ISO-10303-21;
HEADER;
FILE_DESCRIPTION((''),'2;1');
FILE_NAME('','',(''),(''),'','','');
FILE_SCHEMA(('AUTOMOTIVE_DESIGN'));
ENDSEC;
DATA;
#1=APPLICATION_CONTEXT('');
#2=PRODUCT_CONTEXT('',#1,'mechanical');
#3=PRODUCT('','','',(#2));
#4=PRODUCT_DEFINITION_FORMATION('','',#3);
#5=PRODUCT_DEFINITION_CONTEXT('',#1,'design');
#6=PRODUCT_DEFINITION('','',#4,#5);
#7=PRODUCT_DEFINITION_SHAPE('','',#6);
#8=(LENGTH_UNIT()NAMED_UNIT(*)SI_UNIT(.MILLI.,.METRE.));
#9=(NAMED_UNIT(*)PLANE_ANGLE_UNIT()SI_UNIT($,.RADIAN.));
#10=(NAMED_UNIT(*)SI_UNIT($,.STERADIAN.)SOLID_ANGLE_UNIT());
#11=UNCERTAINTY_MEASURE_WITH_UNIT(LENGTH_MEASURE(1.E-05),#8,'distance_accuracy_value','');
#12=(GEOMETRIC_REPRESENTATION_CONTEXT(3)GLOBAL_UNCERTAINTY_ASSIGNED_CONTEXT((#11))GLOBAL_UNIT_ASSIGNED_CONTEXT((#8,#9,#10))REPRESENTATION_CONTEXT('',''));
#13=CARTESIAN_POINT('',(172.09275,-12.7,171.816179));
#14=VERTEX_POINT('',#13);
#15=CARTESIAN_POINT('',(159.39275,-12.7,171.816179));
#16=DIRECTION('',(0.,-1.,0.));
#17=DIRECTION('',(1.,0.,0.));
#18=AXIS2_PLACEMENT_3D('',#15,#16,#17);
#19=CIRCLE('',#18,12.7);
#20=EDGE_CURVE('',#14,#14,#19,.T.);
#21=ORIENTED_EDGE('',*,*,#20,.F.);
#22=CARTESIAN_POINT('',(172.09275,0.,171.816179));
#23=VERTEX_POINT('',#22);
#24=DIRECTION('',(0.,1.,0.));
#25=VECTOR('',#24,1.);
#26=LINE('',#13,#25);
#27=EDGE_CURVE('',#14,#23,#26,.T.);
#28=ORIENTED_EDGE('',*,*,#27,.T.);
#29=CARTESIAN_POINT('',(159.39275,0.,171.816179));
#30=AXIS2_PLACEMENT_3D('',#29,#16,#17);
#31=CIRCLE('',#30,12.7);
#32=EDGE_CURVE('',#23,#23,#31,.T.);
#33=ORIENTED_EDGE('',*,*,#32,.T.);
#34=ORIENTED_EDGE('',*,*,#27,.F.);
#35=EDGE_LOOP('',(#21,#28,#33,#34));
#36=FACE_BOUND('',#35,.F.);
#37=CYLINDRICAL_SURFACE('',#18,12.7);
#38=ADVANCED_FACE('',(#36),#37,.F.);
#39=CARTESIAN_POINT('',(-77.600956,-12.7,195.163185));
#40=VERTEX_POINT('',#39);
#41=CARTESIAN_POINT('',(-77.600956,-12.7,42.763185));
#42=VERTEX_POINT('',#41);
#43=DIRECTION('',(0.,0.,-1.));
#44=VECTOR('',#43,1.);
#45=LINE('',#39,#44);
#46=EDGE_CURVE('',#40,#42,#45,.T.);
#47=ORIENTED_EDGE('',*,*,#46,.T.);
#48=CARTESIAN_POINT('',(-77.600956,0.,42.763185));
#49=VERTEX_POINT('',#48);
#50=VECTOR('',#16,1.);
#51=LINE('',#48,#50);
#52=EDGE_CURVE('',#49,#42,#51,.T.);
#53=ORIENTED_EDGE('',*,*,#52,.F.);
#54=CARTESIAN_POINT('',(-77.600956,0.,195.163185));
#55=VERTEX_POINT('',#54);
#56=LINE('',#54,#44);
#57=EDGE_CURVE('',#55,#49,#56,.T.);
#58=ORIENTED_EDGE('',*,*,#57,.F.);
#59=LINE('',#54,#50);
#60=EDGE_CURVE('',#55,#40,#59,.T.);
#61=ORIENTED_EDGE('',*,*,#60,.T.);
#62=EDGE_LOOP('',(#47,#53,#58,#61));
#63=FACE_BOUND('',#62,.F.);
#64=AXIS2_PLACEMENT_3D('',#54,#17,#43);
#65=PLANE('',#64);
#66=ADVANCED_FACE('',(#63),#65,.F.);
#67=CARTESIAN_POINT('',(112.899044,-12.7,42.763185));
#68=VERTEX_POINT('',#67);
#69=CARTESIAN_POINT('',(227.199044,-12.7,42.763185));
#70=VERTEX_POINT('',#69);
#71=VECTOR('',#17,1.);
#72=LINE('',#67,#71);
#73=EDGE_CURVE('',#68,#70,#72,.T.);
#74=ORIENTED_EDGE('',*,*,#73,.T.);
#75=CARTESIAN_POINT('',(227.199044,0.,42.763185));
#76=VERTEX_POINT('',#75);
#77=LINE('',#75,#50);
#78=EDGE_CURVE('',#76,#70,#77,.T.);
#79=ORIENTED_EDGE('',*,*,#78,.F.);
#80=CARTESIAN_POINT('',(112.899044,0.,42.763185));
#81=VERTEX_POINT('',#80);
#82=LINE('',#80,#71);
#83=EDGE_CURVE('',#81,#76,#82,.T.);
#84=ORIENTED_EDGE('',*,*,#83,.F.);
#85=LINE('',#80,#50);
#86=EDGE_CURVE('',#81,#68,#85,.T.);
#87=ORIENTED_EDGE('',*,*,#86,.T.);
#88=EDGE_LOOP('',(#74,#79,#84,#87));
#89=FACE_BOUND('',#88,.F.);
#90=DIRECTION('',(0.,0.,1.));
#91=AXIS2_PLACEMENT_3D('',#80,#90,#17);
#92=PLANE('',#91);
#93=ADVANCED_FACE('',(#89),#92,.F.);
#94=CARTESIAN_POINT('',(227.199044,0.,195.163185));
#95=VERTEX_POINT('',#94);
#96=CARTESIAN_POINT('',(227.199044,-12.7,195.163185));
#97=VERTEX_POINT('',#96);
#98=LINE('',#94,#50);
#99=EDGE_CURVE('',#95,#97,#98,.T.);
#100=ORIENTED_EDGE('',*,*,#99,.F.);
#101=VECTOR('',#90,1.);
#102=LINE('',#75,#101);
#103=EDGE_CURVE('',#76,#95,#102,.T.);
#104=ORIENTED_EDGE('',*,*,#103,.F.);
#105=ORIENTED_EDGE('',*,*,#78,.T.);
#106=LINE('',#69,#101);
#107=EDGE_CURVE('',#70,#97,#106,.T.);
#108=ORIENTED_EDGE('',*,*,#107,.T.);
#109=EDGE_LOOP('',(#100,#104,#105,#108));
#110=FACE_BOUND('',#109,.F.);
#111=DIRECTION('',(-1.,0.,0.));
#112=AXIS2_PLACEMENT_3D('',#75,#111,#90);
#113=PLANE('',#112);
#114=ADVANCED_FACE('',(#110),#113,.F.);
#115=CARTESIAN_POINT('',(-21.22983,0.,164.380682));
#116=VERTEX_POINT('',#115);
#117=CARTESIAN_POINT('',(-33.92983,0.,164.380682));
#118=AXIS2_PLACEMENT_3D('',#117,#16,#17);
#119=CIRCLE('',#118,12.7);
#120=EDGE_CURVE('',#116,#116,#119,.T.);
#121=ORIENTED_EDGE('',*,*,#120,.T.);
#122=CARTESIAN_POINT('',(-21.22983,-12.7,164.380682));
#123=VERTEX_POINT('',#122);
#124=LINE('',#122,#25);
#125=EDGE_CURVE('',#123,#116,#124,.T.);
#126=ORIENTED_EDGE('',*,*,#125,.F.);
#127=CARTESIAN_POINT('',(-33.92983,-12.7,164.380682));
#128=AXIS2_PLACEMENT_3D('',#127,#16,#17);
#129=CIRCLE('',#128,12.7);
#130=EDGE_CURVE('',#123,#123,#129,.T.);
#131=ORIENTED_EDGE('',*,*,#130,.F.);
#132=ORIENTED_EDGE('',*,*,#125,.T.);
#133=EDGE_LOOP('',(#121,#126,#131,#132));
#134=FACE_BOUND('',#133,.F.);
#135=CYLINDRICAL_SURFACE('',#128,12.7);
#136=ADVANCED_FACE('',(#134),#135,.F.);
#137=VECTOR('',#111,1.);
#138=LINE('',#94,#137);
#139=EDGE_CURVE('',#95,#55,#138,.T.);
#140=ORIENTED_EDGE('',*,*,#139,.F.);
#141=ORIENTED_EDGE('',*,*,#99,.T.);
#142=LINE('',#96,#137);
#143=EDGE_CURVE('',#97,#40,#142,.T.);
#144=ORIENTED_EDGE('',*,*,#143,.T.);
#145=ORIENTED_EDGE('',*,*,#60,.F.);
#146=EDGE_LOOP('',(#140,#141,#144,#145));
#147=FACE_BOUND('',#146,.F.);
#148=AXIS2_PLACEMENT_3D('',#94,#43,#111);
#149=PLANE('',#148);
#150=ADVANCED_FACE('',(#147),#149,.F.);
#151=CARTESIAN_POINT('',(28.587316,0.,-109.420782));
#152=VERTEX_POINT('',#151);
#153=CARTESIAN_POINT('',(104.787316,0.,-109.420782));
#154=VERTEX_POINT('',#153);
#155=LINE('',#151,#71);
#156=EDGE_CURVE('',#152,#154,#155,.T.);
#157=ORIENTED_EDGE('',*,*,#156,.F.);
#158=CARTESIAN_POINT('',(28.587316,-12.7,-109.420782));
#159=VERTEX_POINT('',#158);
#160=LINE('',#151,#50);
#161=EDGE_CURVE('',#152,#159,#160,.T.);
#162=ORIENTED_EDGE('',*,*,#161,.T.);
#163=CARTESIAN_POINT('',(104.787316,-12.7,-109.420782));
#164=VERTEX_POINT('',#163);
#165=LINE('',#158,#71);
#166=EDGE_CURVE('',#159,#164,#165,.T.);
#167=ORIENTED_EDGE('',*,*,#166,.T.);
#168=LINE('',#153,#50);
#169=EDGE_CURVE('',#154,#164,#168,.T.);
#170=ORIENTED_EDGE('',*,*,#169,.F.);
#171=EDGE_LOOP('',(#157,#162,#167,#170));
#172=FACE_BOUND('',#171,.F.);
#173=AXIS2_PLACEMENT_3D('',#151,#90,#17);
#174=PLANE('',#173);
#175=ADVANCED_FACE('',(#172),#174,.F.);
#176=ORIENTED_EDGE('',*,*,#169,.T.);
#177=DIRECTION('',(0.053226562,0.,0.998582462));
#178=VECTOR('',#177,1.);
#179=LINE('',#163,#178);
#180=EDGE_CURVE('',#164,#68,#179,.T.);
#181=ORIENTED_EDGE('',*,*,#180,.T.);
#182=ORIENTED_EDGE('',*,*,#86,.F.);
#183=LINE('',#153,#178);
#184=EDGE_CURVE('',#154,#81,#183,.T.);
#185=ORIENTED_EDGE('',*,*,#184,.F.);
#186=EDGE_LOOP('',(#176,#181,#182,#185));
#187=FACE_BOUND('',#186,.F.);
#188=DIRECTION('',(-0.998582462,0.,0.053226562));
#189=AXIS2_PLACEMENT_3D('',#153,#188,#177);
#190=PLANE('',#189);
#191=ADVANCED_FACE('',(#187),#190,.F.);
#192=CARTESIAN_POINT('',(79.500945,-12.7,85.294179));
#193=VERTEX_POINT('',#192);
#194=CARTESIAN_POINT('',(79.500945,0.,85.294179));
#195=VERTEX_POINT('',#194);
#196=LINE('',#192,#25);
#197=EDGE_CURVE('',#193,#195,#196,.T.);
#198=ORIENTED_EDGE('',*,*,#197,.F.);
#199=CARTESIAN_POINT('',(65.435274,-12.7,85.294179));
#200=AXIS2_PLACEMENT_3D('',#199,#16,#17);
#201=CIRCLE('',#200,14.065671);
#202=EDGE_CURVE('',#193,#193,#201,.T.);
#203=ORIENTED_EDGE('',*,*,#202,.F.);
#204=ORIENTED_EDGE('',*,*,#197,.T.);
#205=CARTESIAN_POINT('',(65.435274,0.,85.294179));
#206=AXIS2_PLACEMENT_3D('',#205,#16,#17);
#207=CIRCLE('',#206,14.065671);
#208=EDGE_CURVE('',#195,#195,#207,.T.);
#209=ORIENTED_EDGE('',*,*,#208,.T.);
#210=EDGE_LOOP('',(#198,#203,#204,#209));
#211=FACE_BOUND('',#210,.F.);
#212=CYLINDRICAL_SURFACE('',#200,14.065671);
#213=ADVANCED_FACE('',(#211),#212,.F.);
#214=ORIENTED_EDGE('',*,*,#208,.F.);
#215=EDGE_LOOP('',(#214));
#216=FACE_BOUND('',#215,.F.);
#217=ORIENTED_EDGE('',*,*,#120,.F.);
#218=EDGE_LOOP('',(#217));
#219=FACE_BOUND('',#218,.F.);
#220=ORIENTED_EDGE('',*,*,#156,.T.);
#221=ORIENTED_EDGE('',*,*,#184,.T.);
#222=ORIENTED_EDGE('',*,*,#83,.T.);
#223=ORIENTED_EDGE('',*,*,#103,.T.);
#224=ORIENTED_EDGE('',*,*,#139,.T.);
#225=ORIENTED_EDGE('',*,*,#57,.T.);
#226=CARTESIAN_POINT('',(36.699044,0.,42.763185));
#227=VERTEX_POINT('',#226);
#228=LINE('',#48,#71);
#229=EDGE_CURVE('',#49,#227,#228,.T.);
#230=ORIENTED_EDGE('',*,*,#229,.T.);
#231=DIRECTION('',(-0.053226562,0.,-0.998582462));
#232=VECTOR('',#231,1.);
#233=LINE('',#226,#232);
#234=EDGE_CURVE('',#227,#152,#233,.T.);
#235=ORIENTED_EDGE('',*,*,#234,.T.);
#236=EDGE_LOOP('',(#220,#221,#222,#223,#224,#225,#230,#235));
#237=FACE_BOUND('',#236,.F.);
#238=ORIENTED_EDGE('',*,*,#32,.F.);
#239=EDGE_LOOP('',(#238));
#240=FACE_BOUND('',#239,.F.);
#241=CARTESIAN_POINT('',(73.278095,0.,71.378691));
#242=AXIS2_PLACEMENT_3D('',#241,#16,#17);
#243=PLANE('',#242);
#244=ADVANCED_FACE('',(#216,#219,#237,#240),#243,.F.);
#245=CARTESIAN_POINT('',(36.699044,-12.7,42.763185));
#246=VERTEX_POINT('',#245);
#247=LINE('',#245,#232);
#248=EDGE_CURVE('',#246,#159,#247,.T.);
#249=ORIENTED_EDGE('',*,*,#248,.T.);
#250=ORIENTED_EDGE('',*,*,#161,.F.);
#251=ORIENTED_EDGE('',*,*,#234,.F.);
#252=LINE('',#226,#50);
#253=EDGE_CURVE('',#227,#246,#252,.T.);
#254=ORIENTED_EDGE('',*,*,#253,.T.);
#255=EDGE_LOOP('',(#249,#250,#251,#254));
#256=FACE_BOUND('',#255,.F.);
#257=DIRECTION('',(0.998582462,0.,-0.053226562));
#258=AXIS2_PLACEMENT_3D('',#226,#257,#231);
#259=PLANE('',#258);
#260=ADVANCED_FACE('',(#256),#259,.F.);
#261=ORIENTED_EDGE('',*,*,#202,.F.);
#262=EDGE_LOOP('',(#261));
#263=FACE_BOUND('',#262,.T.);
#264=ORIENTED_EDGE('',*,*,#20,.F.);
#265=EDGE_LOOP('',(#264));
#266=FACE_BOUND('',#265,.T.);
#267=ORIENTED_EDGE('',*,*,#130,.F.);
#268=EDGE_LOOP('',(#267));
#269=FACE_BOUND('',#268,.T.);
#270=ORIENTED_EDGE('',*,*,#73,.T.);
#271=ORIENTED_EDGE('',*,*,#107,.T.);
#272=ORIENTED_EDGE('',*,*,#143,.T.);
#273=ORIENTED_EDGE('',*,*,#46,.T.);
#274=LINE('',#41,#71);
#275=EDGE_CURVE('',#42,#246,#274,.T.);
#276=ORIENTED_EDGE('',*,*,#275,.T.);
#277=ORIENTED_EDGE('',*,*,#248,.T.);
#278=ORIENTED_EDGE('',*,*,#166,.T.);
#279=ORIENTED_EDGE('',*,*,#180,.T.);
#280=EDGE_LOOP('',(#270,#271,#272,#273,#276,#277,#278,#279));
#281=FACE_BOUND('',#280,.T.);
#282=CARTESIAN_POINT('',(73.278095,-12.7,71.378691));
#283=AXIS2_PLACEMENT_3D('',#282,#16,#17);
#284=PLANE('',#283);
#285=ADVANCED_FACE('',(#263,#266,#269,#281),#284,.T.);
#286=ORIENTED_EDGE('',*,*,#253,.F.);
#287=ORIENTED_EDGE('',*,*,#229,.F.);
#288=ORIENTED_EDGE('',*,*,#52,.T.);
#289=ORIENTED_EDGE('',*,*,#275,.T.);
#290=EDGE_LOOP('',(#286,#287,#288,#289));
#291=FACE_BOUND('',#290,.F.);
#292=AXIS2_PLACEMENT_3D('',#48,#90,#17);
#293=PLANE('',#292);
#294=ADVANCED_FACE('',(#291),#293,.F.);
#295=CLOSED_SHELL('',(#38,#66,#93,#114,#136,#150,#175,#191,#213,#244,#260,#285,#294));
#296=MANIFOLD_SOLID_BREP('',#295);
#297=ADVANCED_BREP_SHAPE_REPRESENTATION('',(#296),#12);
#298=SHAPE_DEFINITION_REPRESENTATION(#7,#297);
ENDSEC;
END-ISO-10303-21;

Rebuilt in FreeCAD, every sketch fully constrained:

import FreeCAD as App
import Part
import Sketcher
from FreeCAD import Vector
Q = App.Units.Quantity


def add_polygon(sketch, points):
    """Adds a closed chain of lines whose ends are joined by coincident constraints."""
    first, n = sketch.GeometryCount, len(points)
    for a, b in zip(points, points[1:] + points[:1]):
        sketch.addGeometry(Part.LineSegment(App.Vector(*a, 0), App.Vector(*b, 0)), False)
    for i in range(n):
        sketch.addConstraint(Sketcher.Constraint("Coincident", first + i, 2, first + (i + 1) % n, 1))

doc = App.newDocument("Part")
body = doc.addObject("PartDesign::Body", "Body")

# Sketch on XZ plane
sketch1 = body.newObject("Sketcher::SketchObject", "Sketch")
sketch1.AttachmentSupport = (doc.getObject("XZ_Plane"), [""])
sketch1.MapMode = "FlatFace"
add_polygon(sketch1, [(-78, 43), (37, 43), (29, -109), (105, -109), (113, 43), (227, 43), (227, 195), (-78, 195)])  # lines 0-7
sketch1.addConstraint(Sketcher.Constraint("Horizontal", 0))
sketch1.addConstraint(Sketcher.Constraint("Horizontal", 2))
sketch1.addConstraint(Sketcher.Constraint("Horizontal", 4))
sketch1.addConstraint(Sketcher.Constraint("Vertical", 5))
sketch1.addConstraint(Sketcher.Constraint("Horizontal", 6))
sketch1.addConstraint(Sketcher.Constraint("Vertical", 7))
sketch1.addConstraint(Sketcher.Constraint("Parallel", 1, 3))
sketch1.addConstraint(Sketcher.Constraint("Horizontal", 0, 2, 3, 2))
sketch1.addConstraint(Sketcher.Constraint("Equal", 0, 4))
sketch1.addConstraint(Sketcher.Constraint("DistanceX", 2, 1, 2, 2, Q("3 in")))
sketch1.addConstraint(Sketcher.Constraint("DistanceX", 6, 2, 6, 1, Q("12 in")))
sketch1.addConstraint(Sketcher.Constraint("DistanceY", 5, 1, 5, 2, Q("6 in")))
sketch1.addConstraint(Sketcher.Constraint("Distance", 1, Q("6 in")))
sketch1.addConstraint(Sketcher.Constraint("DistanceX", 1, 2, 3, 2, 84.311728))
sketch1.addConstraint(Sketcher.Constraint("DistanceX", -1, 1, 0, 2, 36.699044))
sketch1.addConstraint(Sketcher.Constraint("DistanceY", -1, 1, 0, 2, 42.763185))
pad1 = body.newObject("PartDesign::Pad", "Pad")
pad1.Profile = sketch1
pad1.Length = Q("0.5 in")

# Sketch on XZ plane
sketch2 = body.newObject("Sketcher::SketchObject", "Sketch001")
sketch2.AttachmentSupport = (doc.getObject("XZ_Plane"), [""])
sketch2.MapMode = "FlatFace"
sketch2.AttachmentOffset = App.Placement(Vector(0, 0, 0.5 * 25.4), App.Rotation())
sketch2.addGeometry(Part.Circle(Vector(-34, 164, 0), Vector(0, 0, 1), 13), False)
sketch2.addGeometry(Part.Circle(Vector(65, 85, 0), Vector(0, 0, 1), 14), False)
sketch2.addGeometry(Part.Circle(Vector(159, 172, 0), Vector(0, 0, 1), 13), False)
sketch2.addConstraint(Sketcher.Constraint("Equal", 0, 2))
sketch2.addConstraint(Sketcher.Constraint("Diameter", 0, Q("1 in")))
sketch2.addConstraint(Sketcher.Constraint("Diameter", 1, 28.131342))
sketch2.addConstraint(Sketcher.Constraint("DistanceY", 1, 3, 2, 3, 86.522))
sketch2.addConstraint(Sketcher.Constraint("DistanceX", 0, 3, -1, 1, 33.92983))
sketch2.addConstraint(Sketcher.Constraint("DistanceY", -1, 1, 0, 3, 164.380682))
sketch2.addConstraint(Sketcher.Constraint("DistanceY", -1, 1, 1, 3, 85.294179))
sketch2.addConstraint(Sketcher.Constraint("DistanceX", -1, 1, 2, 3, 159.39275))
sketch2.addConstraint(Sketcher.Constraint("DistanceX", -1, 1, 1, 3, 65.435274))
pocket1 = body.newObject("PartDesign::Pocket", "Pocket")
pocket1.Profile = sketch2
pocket1.Length = Q("2.41 in")

doc.recompute()
